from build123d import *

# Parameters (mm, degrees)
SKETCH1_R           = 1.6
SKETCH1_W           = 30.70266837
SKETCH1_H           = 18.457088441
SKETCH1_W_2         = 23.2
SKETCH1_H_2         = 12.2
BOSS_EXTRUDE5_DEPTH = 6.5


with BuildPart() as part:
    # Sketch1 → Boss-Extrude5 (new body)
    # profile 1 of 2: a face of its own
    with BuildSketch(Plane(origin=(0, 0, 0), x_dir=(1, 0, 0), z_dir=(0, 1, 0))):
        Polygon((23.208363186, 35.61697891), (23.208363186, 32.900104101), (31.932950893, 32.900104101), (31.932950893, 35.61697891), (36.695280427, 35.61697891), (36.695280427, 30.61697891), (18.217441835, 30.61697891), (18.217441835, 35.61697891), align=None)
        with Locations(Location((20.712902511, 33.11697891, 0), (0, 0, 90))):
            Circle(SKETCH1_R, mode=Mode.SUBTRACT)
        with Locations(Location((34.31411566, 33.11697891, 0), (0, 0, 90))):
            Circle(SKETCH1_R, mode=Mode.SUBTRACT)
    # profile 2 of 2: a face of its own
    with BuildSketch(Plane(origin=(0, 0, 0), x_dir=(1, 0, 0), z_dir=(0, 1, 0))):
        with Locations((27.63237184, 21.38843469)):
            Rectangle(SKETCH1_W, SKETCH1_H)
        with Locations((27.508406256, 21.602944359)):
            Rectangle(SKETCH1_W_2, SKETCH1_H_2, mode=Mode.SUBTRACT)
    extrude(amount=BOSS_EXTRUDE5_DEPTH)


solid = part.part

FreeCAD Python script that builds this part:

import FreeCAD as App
import Part
import Sketcher
Q = App.Units.Quantity


def add_polygon(sketch, points):
    """Adds a closed chain of lines whose ends are joined by coincident constraints."""
    first, n = sketch.GeometryCount, len(points)
    for a, b in zip(points, points[1:] + points[:1]):
        sketch.addGeometry(Part.LineSegment(App.Vector(*a, 0), App.Vector(*b, 0)), False)
    for i in range(n):
        sketch.addConstraint(Sketcher.Constraint("Coincident", first + i, 2, first + (i + 1) % n, 1))

doc = App.newDocument("Part")
body = doc.addObject("PartDesign::Body", "Body")

# Sketch on XZ plane
sketch1 = doc.addObject("Sketcher::SketchObject", "Sketch")
body.addObject(sketch1)
sketch1.AttachmentSupport = (doc.XZ_Plane, [""])
sketch1.MapMode = "FlatFace"
add_polygon(sketch1, [(23.208363, -32.900104), (23.208363, -35.616979), (18.217442, -35.616979), (18.217442, -30.616979), (12.281038, -30.616979), (12.281038, -12.15989), (42.983706, -12.15989), (42.983706, -30.616979), (36.69528, -30.616979), (36.69528, -35.616979), (31.932951, -35.616979), (31.932951, -32.900104)])  # lines 0-11
sketch1.addGeometry(Part.Circle(App.Vector(34.314116, -33.116979, 0), App.Vector(0, 0, 1), 1.6), False)  # 12
sketch1.addGeometry(Part.Circle(App.Vector(20.712903, -33.116979, 0), App.Vector(0, 0, 1), 1.6), False)  # 13
add_polygon(sketch1, [(15.908406, -15.502944), (15.908406, -27.702944), (39.108406, -27.702944), (39.108406, -15.502944)])  # lines 14-17
sketch1.addConstraint([
    Sketcher.Constraint("Vertical", 0),
    Sketcher.Constraint("Horizontal", 1),
    Sketcher.Constraint("Vertical", 2),
    Sketcher.Constraint("Horizontal", 3),
    Sketcher.Constraint("Vertical", 4),
    Sketcher.Constraint("Horizontal", 5),
    Sketcher.Constraint("Vertical", 6),
    Sketcher.Constraint("Horizontal", 7),
    Sketcher.Constraint("Vertical", 8),
    Sketcher.Constraint("Horizontal", 9),
    Sketcher.Constraint("Vertical", 10),
    Sketcher.Constraint("Horizontal", 11),
    Sketcher.Constraint("Vertical", 14),
    Sketcher.Constraint("Horizontal", 15),
    Sketcher.Constraint("Vertical", 16),
    Sketcher.Constraint("Horizontal", 17),
    Sketcher.Constraint("Equal", 12, 13),
    Sketcher.Constraint("Horizontal", 12, 3, 13, 3),
    Sketcher.Constraint("Horizontal", 3, 2, 6, 2),
    Sketcher.Constraint("Horizontal", 1, 2, 8, 2),
    Sketcher.Constraint("Diameter", 12, Q("3.2 mm")),
    Sketcher.Constraint("DistanceY", 2, 1, 2, 2, Q("5 mm")),
    Sketcher.Constraint("DistanceX", 15, 1, 15, 2, Q("23.2 mm")),
    Sketcher.Constraint("DistanceY", 14, 2, 14, 1, Q("12.2 mm")),
    Sketcher.Constraint("DistanceY", 0, 2, 13, 3, Q("2.5 mm")),
    Sketcher.Constraint("DistanceX", 1, 2, 1, 1, Q("4.990921 mm")),
    Sketcher.Constraint("DistanceX", 5, 1, 5, 2, Q("30.702668 mm")),
    Sketcher.Constraint("DistanceX", 9, 2, 9, 1, Q("4.76233 mm")),
    Sketcher.Constraint("DistanceY", 4, 1, 4, 2, Q("18.457088 mm")),
    Sketcher.Constraint("DistanceX", 15, 2, 6, 2, Q("3.8753 mm")),
    Sketcher.Constraint("DistanceX", 3, 2, 3, 1, Q("5.936404 mm")),
    Sketcher.Constraint("DistanceX", 7, 2, 7, 1, Q("6.288426 mm")),
    Sketcher.Constraint("DistanceY", 0, 2, 0, 1, Q("2.716875 mm")),
    Sketcher.Constraint("DistanceY", 12, 3, -1, 1, Q("33.116979 mm")),
    Sketcher.Constraint("DistanceX", -1, 1, 1, 2, Q("18.217442 mm")),
    Sketcher.Constraint("DistanceX", 13, 3, 0, 2, Q("2.495461 mm")),
    Sketcher.Constraint("DistanceX", 3, 2, 12, 3, Q("22.033078 mm")),
    Sketcher.Constraint("DistanceY", 11, 2, 14, 2, Q("5.19716 mm")),
])
pad1 = doc.addObject("PartDesign::Pad", "Pad")
body.addObject(pad1)
pad1.Profile = sketch1
pad1.Length = 6.5
pad1.Reversed = True

doc.recompute()
